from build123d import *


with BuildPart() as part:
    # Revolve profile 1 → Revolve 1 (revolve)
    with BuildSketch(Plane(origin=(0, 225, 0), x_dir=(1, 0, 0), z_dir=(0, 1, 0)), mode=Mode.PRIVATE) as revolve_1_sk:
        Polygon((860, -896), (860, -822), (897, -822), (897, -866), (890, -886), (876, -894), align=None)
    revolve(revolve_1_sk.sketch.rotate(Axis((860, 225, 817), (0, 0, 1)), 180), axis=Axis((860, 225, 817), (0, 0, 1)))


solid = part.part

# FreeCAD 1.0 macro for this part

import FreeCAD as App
import Part
import Sketcher
Q = App.Units.Quantity


def add_polygon(sketch, points):
    """Adds a closed chain of lines whose ends are joined by coincident constraints."""
    first, n = sketch.GeometryCount, len(points)
    for a, b in zip(points, points[1:] + points[:1]):
        sketch.addGeometry(Part.LineSegment(App.Vector(*a, 0), App.Vector(*b, 0)), False)
    for i in range(n):
        sketch.addConstraint(Sketcher.Constraint("Coincident", first + i, 2, first + (i + 1) % n, 1))

doc = App.newDocument("Part")
body = doc.addObject("PartDesign::Body", "Body")

# Sketch on XZ plane
sketch1 = body.newObject("Sketcher::SketchObject", "Sketch")
sketch1.AttachmentSupport = (doc.getObject("XZ_Plane"), [""])
sketch1.MapMode = "FlatFace"
sketch1.AttachmentOffset = App.Placement(App.Vector(0, 0, -225), App.Rotation())
add_polygon(sketch1, [(860, 822), (860, 896), (876, 894), (890, 886), (897, 866), (897, 822)])  # lines 0-5
sketch1.addGeometry(Part.LineSegment(App.Vector(860, 822, 0), App.Vector(860, 896, 0)), True)  # axis
sketch1.addConstraint([
    Sketcher.Constraint("Vertical", 0),
    Sketcher.Constraint("Vertical", 4),
    Sketcher.Constraint("Horizontal", 5),
    Sketcher.Constraint("Vertical", 6),
    Sketcher.Constraint("Coincident", 6, 1, 5, 2),
    Sketcher.Constraint("Equal", 0, 6),
    Sketcher.Constraint("Equal", 1, 2),
    Sketcher.Constraint("DistanceX", 5, 2, 5, 1, Q("37 mm")),
    Sketcher.Constraint("DistanceY", 0, 1, 0, 2, Q("74 mm")),
    Sketcher.Constraint("DistanceY", 4, 2, 4, 1, Q("44 mm")),
    Sketcher.Constraint("DistanceX", -1, 1, 0, 2, Q("860 mm")),
    Sketcher.Constraint("DistanceY", -1, 1, 0, 2, Q("896 mm")),
    Sketcher.Constraint("DistanceX", -1, 1, 1, 2, Q("876 mm")),
    Sketcher.Constraint("DistanceY", -1, 1, 1, 2, Q("894 mm")),
    Sketcher.Constraint("DistanceX", -1, 1, 2, 2, Q("890 mm")),
])
revolution = body.newObject("PartDesign::Revolution", "Revolution")
revolution.Profile = sketch1
revolution.ReferenceAxis = (sketch1, ["Axis0"])
revolution.Angle = 360

doc.recompute()
